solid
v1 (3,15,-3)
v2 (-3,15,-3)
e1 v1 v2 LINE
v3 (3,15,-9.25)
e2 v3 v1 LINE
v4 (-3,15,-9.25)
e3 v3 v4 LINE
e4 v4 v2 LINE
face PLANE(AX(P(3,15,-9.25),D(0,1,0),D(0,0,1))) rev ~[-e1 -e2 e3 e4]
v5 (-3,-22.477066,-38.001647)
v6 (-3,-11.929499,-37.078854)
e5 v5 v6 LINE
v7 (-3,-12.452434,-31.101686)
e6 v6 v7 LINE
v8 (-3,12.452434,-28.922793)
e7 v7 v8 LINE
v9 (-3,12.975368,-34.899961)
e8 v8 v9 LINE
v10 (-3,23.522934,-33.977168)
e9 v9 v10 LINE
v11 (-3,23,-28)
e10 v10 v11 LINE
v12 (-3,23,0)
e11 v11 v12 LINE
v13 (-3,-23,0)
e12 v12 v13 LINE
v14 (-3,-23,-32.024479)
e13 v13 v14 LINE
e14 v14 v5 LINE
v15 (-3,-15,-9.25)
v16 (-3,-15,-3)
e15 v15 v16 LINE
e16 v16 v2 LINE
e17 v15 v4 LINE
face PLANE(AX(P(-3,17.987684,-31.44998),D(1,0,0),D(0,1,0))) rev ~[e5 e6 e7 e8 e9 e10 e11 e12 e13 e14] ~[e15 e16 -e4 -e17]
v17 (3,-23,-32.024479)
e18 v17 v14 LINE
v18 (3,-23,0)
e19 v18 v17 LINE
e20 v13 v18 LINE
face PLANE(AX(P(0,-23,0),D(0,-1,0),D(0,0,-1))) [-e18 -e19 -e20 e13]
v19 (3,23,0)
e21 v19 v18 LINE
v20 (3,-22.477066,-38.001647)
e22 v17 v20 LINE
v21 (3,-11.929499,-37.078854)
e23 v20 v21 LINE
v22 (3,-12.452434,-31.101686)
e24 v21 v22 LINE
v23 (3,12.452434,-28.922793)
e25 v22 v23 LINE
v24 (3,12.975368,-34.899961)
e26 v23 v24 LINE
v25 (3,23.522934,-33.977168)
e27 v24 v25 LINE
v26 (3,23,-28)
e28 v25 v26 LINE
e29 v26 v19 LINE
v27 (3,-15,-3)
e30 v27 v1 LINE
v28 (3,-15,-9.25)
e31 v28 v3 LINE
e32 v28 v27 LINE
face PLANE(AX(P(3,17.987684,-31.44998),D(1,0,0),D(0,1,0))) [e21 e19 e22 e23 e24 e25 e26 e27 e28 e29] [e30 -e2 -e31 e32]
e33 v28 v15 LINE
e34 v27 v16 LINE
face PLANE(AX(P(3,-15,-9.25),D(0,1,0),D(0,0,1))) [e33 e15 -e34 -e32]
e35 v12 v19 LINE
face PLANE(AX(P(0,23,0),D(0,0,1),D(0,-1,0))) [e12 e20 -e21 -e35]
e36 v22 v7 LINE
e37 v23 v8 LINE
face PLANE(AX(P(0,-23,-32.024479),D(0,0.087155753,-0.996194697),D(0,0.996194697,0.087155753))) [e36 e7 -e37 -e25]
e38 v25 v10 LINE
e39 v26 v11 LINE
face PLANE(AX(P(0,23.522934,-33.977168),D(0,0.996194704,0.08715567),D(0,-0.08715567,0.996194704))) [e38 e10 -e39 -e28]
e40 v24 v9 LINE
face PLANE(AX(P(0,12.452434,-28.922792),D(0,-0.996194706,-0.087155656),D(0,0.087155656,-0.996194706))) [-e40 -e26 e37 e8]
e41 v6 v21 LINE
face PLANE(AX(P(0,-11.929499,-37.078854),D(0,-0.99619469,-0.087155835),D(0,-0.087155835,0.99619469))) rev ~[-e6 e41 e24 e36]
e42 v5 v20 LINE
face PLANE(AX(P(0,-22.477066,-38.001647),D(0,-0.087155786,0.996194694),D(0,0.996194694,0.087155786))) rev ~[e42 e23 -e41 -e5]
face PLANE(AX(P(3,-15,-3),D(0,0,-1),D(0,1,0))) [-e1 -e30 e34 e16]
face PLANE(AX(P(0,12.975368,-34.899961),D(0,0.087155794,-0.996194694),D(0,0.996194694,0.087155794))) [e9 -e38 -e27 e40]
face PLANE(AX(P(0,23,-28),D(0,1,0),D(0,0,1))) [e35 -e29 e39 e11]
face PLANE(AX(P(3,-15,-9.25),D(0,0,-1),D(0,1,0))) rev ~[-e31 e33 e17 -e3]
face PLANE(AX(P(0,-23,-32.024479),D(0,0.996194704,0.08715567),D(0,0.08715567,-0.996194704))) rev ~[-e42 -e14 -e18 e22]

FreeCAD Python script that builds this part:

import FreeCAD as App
import Part
import Sketcher

V = App.Vector
Q = App.Units.Quantity


def add_polygon(sketch, points):
    """Adds a closed chain of lines whose ends are joined by coincident constraints."""
    first, n = sketch.GeometryCount, len(points)
    for a, b in zip(points, points[1:] + points[:1]):
        sketch.addGeometry(Part.LineSegment(App.Vector(*a, 0), App.Vector(*b, 0)), False)
    for i in range(n):
        sketch.addConstraint(Sketcher.Constraint("Coincident", first + i, 2, first + (i + 1) % n, 1))

doc = App.newDocument("Part")
body = doc.addObject("PartDesign::Body", "Body")

# Sketch on YZ plane
sketch1 = doc.addObject("Sketcher::SketchObject", "Sketch")
body.addObject(sketch1)
sketch1.AttachmentSupport = (doc.YZ_Plane, [""])
sketch1.MapMode = "FlatFace"
add_polygon(sketch1, [(23, -28), (23, 0), (-23, 0), (-23, -32)])  # lines 0-3
sketch1.addConstraint(Sketcher.Constraint("Vertical", 0))
sketch1.addConstraint(Sketcher.Constraint("Horizontal", 1))
sketch1.addConstraint(Sketcher.Constraint("Vertical", 2))
sketch1.addConstraint(Sketcher.Constraint("Symmetric", 0, 2, 1, 2, -1, 1))
sketch1.addConstraint(Sketcher.Constraint("DistanceX", 1, 2, 1, 1, Q("46 mm")))
sketch1.addConstraint(Sketcher.Constraint("DistanceY", 0, 1, 0, 2, Q("28 mm")))
sketch1.addConstraint(Sketcher.Constraint("Angle", 3, Q("5.000001 deg")))
pad1 = doc.addObject("PartDesign::Pad", "Pad")
body.addObject(pad1)
pad1.Profile = sketch1
pad1.Length = 6
pad1.Midplane = True

# Sketch on YZ plane
sketch2 = doc.addObject("Sketcher::SketchObject", "Sketch001")
body.addObject(sketch2)
sketch2.AttachmentSupport = (doc.YZ_Plane, [""])
sketch2.MapMode = "FlatFace"
add_polygon(sketch2, [(-23, -32), (-22, -38), (-12, -37), (-12, -31)])  # lines 0-3
add_polygon(sketch2, [(24, -34), (23, -28), (12, -29), (13, -35)])  # lines 4-7
sketch2.addConstraint(Sketcher.Constraint("Perpendicular", 0, 1))
sketch2.addConstraint(Sketcher.Constraint("Perpendicular", 1, 2))
sketch2.addConstraint(Sketcher.Constraint("Perpendicular", 2, 3))
sketch2.addConstraint(Sketcher.Constraint("Perpendicular", 3, 4))
sketch2.addConstraint(Sketcher.Constraint("Perpendicular", 4, 5))
sketch2.addConstraint(Sketcher.Constraint("Perpendicular", 5, 6))
sketch2.addConstraint(Sketcher.Constraint("Perpendicular", 6, 7))
sketch2.addConstraint(Sketcher.Constraint("Equal", 2, 4))
sketch2.addConstraint(Sketcher.Constraint("Equal", 3, 5))
sketch2.addConstraint(Sketcher.Constraint("Angle", 0, Q("-85.000004 deg")))
sketch2.addConstraint(Sketcher.Constraint("Distance", 0, Q("6 mm")))
sketch2.addConstraint(Sketcher.Constraint("DistanceX", 3, 2, -1, 1, Q("23 mm")))
sketch2.addConstraint(Sketcher.Constraint("DistanceX", -1, 1, 4, 2, Q("23 mm")))
sketch2.addConstraint(Sketcher.Constraint("DistanceY", 4, 2, -1, 1, Q("28 mm")))
sketch2.addConstraint(Sketcher.Constraint("DistanceX", 1, 2, -1, 1, Q("11.929499 mm")))
sketch2.addConstraint(Sketcher.Constraint("DistanceY", 3, 2, -1, 1, Q("32.024479 mm")))
pad2 = doc.addObject("PartDesign::Pad", "Pad001")
body.addObject(pad2)
pad2.Profile = sketch2
pad2.Length = 6
pad2.Midplane = True

# Sketch on YZ plane
sketch3 = doc.addObject("Sketcher::SketchObject", "Sketch002")
body.addObject(sketch3)
sketch3.AttachmentSupport = (doc.YZ_Plane, [""])
sketch3.MapMode = "FlatFace"
sketch3.AttachmentOffset = App.Placement(V(0, 0, 3), App.Rotation())
add_polygon(sketch3, [(-15, -3), (-15, -9), (15, -9), (15, -3)])  # lines 0-3
sketch3.addConstraint(Sketcher.Constraint("Vertical", 0))
sketch3.addConstraint(Sketcher.Constraint("Horizontal", 1))
sketch3.addConstraint(Sketcher.Constraint("Vertical", 2))
sketch3.addConstraint(Sketcher.Constraint("Horizontal", 3))
sketch3.addConstraint(Sketcher.Constraint("DistanceX", 1, 1, 1, 2, Q("30 mm")))
sketch3.addConstraint(Sketcher.Constraint("DistanceX", 0, 2, -1, 1, Q("15 mm")))
sketch3.addConstraint(Sketcher.Constraint("DistanceY", 2, 2, -1, 1, Q("3 mm")))
sketch3.addConstraint(Sketcher.Constraint("DistanceY", 0, 2, 0, 1, Q("6.25 mm")))
pocket1 = doc.addObject("PartDesign::Pocket", "Pocket")
body.addObject(pocket1)
pocket1.Profile = sketch3
pocket1.Type = "ThroughAll"

doc.recompute()
